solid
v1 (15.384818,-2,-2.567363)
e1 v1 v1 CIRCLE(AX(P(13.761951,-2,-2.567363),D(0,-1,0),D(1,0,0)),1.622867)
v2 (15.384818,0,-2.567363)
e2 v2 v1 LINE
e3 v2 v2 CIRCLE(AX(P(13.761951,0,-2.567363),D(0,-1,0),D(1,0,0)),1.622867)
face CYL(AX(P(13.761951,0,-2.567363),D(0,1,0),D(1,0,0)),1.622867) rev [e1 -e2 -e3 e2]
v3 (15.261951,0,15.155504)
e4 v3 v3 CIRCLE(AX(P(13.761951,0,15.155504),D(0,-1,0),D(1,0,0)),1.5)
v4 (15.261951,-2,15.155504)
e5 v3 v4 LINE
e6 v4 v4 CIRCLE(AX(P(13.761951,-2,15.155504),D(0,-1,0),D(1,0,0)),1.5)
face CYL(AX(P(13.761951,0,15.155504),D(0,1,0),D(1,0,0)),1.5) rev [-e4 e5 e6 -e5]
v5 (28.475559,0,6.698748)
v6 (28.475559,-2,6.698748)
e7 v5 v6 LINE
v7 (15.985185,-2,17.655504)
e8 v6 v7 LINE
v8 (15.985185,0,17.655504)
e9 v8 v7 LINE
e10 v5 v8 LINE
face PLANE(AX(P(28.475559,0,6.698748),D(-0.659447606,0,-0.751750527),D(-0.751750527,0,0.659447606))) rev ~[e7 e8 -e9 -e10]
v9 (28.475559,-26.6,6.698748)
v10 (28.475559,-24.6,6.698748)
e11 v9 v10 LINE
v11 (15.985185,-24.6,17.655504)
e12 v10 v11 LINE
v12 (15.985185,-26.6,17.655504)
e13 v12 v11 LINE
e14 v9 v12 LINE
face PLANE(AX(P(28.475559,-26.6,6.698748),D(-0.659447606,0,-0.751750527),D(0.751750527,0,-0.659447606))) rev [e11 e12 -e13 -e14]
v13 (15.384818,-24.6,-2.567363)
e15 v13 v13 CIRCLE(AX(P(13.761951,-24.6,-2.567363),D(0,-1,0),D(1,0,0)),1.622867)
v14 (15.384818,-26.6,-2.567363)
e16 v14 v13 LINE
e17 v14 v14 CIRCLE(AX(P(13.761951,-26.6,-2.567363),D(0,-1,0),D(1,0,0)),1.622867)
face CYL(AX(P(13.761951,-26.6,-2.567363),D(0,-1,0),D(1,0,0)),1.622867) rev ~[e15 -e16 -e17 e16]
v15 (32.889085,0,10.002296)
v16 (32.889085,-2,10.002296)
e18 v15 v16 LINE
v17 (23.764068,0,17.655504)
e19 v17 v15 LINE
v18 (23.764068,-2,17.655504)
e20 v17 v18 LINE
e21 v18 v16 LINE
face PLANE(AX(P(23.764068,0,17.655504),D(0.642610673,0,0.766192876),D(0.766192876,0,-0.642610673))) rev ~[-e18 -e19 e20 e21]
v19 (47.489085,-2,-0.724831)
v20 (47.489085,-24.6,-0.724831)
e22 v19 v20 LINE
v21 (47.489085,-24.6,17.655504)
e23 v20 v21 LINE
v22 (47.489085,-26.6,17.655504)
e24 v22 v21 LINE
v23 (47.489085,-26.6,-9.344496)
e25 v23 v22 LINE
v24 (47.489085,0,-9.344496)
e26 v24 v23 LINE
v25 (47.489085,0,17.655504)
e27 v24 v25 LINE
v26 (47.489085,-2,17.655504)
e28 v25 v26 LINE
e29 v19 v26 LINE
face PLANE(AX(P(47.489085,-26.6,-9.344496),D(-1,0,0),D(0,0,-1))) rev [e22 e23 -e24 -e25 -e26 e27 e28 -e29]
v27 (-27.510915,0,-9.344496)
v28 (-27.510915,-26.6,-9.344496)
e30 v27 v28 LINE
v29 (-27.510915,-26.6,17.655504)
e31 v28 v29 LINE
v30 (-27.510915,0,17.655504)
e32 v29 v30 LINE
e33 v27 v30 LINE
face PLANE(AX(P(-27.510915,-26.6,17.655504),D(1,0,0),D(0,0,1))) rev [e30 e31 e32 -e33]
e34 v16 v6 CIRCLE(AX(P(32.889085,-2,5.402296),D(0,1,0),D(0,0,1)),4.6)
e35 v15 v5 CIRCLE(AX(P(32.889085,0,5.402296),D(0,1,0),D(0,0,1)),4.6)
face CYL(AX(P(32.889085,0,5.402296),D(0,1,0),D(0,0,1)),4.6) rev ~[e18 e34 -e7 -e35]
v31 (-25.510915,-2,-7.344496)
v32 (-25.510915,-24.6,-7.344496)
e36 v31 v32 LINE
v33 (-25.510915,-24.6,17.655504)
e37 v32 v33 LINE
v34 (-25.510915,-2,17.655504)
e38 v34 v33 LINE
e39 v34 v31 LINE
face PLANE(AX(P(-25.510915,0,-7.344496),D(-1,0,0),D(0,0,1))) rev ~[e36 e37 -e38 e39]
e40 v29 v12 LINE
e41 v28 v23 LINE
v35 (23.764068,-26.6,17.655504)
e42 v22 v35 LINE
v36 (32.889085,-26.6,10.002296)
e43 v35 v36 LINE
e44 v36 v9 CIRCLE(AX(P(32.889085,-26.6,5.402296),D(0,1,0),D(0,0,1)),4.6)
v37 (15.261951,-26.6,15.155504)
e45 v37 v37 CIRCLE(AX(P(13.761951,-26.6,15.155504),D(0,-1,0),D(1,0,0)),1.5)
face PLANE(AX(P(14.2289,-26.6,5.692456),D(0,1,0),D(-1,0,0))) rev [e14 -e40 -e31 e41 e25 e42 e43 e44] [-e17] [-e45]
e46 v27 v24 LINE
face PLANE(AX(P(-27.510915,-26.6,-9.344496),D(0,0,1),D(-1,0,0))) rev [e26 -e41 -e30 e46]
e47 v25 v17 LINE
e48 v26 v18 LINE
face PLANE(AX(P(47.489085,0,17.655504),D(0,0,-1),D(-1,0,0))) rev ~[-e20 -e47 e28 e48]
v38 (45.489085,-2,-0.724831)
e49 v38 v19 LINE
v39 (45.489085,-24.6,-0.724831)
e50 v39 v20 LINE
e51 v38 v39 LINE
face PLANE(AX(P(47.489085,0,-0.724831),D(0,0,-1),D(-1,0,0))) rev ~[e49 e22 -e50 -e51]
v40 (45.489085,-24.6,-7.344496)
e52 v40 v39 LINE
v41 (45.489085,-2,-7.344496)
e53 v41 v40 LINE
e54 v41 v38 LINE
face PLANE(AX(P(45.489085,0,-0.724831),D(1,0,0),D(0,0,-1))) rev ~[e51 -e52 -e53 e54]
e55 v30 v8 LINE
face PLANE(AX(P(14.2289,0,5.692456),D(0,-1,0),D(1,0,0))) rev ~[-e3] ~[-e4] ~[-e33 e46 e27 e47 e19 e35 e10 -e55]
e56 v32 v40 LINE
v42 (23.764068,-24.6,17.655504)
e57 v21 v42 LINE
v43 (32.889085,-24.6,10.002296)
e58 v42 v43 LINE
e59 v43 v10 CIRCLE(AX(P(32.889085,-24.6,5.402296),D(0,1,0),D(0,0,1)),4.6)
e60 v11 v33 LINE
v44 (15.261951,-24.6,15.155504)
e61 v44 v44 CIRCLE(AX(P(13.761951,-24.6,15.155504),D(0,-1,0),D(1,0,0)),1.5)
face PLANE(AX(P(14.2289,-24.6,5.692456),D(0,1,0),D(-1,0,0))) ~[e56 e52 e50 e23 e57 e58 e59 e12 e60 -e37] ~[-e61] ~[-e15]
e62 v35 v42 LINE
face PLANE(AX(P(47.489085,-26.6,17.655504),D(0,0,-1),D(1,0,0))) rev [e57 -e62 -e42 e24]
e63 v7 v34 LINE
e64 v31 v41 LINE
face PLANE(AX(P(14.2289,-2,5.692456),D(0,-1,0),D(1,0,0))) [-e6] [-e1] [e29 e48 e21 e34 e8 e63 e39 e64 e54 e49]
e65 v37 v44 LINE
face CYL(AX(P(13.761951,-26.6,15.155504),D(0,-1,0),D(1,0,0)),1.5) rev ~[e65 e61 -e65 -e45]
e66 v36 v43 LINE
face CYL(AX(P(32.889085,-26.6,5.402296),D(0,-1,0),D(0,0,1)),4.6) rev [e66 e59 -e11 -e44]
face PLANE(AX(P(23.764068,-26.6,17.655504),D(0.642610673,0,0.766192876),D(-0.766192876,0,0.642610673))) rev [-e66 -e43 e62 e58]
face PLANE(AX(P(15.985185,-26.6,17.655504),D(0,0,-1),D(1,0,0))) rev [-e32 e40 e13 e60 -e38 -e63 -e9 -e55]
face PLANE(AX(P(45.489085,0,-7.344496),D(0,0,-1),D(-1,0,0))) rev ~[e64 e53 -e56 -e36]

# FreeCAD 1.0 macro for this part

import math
import FreeCAD as App
import Part
import Sketcher

doc = App.newDocument("Part")
body = doc.addObject("PartDesign::Body", "Body")

# Sketch on XZ plane
sketch1 = doc.addObject("Sketcher::SketchObject", "Sketch")
body.addObject(sketch1)
sketch1.AttachmentSupport = (doc.XZ_Plane, [""])
sketch1.MapMode = "FlatFace"
sketch1.addGeometry(Part.LineSegment(App.Vector(47.489085, 17.655504, 0), App.Vector(23.764068, 17.655504, 0)), False)
sketch1.addGeometry(Part.LineSegment(App.Vector(23.764068, 17.655504, 0), App.Vector(32.889085, 10.002296, 0)), False)
sketch1.addGeometry(Part.ArcOfCircle(Part.Circle(App.Vector(32.889085, 5.402296, 0), App.Vector(0, 0, 1), 4.6), math.radians(163.630106), math.radians(450)), False)
sketch1.addGeometry(Part.LineSegment(App.Vector(28.475559, 6.698748, 0), App.Vector(15.985185, 17.655504, 0)), False)
sketch1.addGeometry(Part.LineSegment(App.Vector(15.985185, 17.655504, 0), App.Vector(-27.510915, 17.655504, 0)), False)
sketch1.addGeometry(Part.LineSegment(App.Vector(-27.510915, 17.655504, 0), App.Vector(-27.510915, -9.344496, 0)), False)
sketch1.addGeometry(Part.LineSegment(App.Vector(-27.510915, -9.344496, 0), App.Vector(47.489085, -9.344496, 0)), False)
sketch1.addGeometry(Part.LineSegment(App.Vector(47.489085, -9.344496, 0), App.Vector(47.489085, 17.655504, 0)), False)
sketch1.addGeometry(Part.Circle(App.Vector(13.761951, -2.567363, 0), App.Vector(0, 0, 1), 1.622867), False)
sketch1.addGeometry(Part.Circle(App.Vector(13.761951, 15.155504, 0), App.Vector(0, 0, 1), 1.5), False)
sketch1.addConstraint(Sketcher.Constraint("Coincident", 0, 2, 1, 1))
sketch1.addConstraint(Sketcher.Constraint("Coincident", 1, 2, 2, 2))
sketch1.addConstraint(Sketcher.Constraint("Coincident", 2, 1, 3, 1))
sketch1.addConstraint(Sketcher.Constraint("Coincident", 3, 2, 4, 1))
sketch1.addConstraint(Sketcher.Constraint("Coincident", 4, 2, 5, 1))
sketch1.addConstraint(Sketcher.Constraint("Coincident", 5, 2, 6, 1))
sketch1.addConstraint(Sketcher.Constraint("Coincident", 6, 2, 7, 1))
sketch1.addConstraint(Sketcher.Constraint("Coincident", 7, 2, 0, 1))
sketch1.addConstraint(Sketcher.Constraint("Horizontal", 0))
sketch1.addConstraint(Sketcher.Constraint("Horizontal", 4))
sketch1.addConstraint(Sketcher.Constraint("Vertical", 5))
sketch1.addConstraint(Sketcher.Constraint("Horizontal", 6))
sketch1.addConstraint(Sketcher.Constraint("Vertical", 7))
sketch1.addConstraint(Sketcher.Constraint("Horizontal", 0, 2, 3, 2))
sketch1.addConstraint(Sketcher.Constraint("Vertical", 8, 3, 9, 3))
sketch1.addConstraint(Sketcher.Constraint("Vertical", 2, 3, 1, 2))
sketch1.addConstraint(Sketcher.Constraint("Diameter", 9, 3.0))
sketch1.addConstraint(Sketcher.Constraint("Radius", 2, 4.6))
sketch1.addConstraint(Sketcher.Constraint("DistanceX", 6, 1, 6, 2, 75.0))
sketch1.addConstraint(Sketcher.Constraint("DistanceY", 5, 2, 5, 1, 27.0))
sketch1.addConstraint(Sketcher.Constraint("DistanceY", 9, 3, 0, 2, 2.5))
sketch1.addConstraint(Sketcher.Constraint("DistanceX", 2, 3, 6, 2, 14.6))
sketch1.addConstraint(Sketcher.Constraint("Diameter", 8, 3.245733))
sketch1.addConstraint(Sketcher.Constraint("DistanceX", 4, 2, 4, 1, 43.496101))
sketch1.addConstraint(Sketcher.Constraint("Distance", 3, 16.615051))
sketch1.addConstraint(Sketcher.Constraint("DistanceX", 0, 2, 0, 1, 23.725016))
sketch1.addConstraint(Sketcher.Constraint("DistanceX", -1, 1, 8, 3, 13.761951))
sketch1.addConstraint(Sketcher.Constraint("DistanceX", -1, 1, 0, 2, 23.764068))
sketch1.addConstraint(Sketcher.Constraint("DistanceX", -1, 1, 2, 1, 28.475559))
sketch1.addConstraint(Sketcher.Constraint("DistanceY", -1, 1, 2, 1, 6.698748))
sketch1.addConstraint(Sketcher.Constraint("DistanceY", 8, 3, 2, 3, 7.969659))
pad1 = doc.addObject("PartDesign::Pad", "Pad")
body.addObject(pad1)
pad1.Profile = sketch1
pad1.Length = 2

# Sketch on XZ plane
sketch2 = doc.addObject("Sketcher::SketchObject", "Sketch001")
body.addObject(sketch2)
sketch2.AttachmentSupport = (doc.XZ_Plane, [""])
sketch2.MapMode = "FlatFace"
sketch2.addGeometry(Part.LineSegment(App.Vector(47.489085, -9.344496, 0), App.Vector(47.489085, -0.724831, 0)), False)
sketch2.addGeometry(Part.LineSegment(App.Vector(47.489085, -0.724831, 0), App.Vector(45.489085, -0.724831, 0)), False)
sketch2.addGeometry(Part.LineSegment(App.Vector(45.489085, -0.724831, 0), App.Vector(45.489085, -7.344496, 0)), False)
sketch2.addGeometry(Part.LineSegment(App.Vector(45.489085, -7.344496, 0), App.Vector(-27.510915, -7.344496, 0)), False)
sketch2.addGeometry(Part.LineSegment(App.Vector(-27.510915, -7.344496, 0), App.Vector(-27.510915, -9.344496, 0)), False)
sketch2.addGeometry(Part.LineSegment(App.Vector(-27.510915, -9.344496, 0), App.Vector(47.489085, -9.344496, 0)), False)
sketch2.addConstraint(Sketcher.Constraint("Coincident", 0, 2, 1, 1))
sketch2.addConstraint(Sketcher.Constraint("Coincident", 1, 2, 2, 1))
sketch2.addConstraint(Sketcher.Constraint("Coincident", 2, 2, 3, 1))
sketch2.addConstraint(Sketcher.Constraint("Coincident", 3, 2, 4, 1))
sketch2.addConstraint(Sketcher.Constraint("Coincident", 4, 2, 5, 1))
sketch2.addConstraint(Sketcher.Constraint("Coincident", 5, 2, 0, 1))
sketch2.addConstraint(Sketcher.Constraint("Vertical", 0))
sketch2.addConstraint(Sketcher.Constraint("Horizontal", 1))
sketch2.addConstraint(Sketcher.Constraint("Vertical", 2))
sketch2.addConstraint(Sketcher.Constraint("Horizontal", 3))
sketch2.addConstraint(Sketcher.Constraint("Vertical", 4))
sketch2.addConstraint(Sketcher.Constraint("Horizontal", 5))
sketch2.addConstraint(Sketcher.Constraint("Equal", 1, 4))
sketch2.addConstraint(Sketcher.Constraint("DistanceX", 1, 2, 1, 1, 2.0))
sketch2.addConstraint(Sketcher.Constraint("DistanceX", 3, 2, 3, 1, 73.0))
sketch2.addConstraint(Sketcher.Constraint("DistanceY", 0, 1, 0, 2, 8.619666))
sketch2.addConstraint(Sketcher.Constraint("DistanceY", 0, 2, -1, 1, 0.724831))
sketch2.addConstraint(Sketcher.Constraint("DistanceX", -1, 1, 0, 2, 47.489085))
pad2 = doc.addObject("PartDesign::Pad", "Pad001")
body.addObject(pad2)
pad2.Profile = sketch2
pad2.Length = 25.6

# Sketch on XZ plane
sketch3 = doc.addObject("Sketcher::SketchObject", "Sketch002")
body.addObject(sketch3)
sketch3.AttachmentSupport = (doc.XZ_Plane, [""])
sketch3.MapMode = "FlatFace"
sketch3.addGeometry(Part.LineSegment(App.Vector(-27.510915, 17.655504, 0), App.Vector(-27.510915, -7.344496, 0)), False)
sketch3.addGeometry(Part.LineSegment(App.Vector(-27.510915, -7.344496, 0), App.Vector(-25.510915, -7.344496, 0)), False)
sketch3.addGeometry(Part.LineSegment(App.Vector(-25.510915, -7.344496, 0), App.Vector(-25.510915, 17.655504, 0)), False)
sketch3.addGeometry(Part.LineSegment(App.Vector(-25.510915, 17.655504, 0), App.Vector(-27.510915, 17.655504, 0)), False)
sketch3.addConstraint(Sketcher.Constraint("Coincident", 0, 2, 1, 1))
sketch3.addConstraint(Sketcher.Constraint("Coincident", 1, 2, 2, 1))
sketch3.addConstraint(Sketcher.Constraint("Coincident", 2, 2, 3, 1))
sketch3.addConstraint(Sketcher.Constraint("Coincident", 3, 2, 0, 1))
sketch3.addConstraint(Sketcher.Constraint("Vertical", 0))
sketch3.addConstraint(Sketcher.Constraint("Horizontal", 1))
sketch3.addConstraint(Sketcher.Constraint("Vertical", 2))
sketch3.addConstraint(Sketcher.Constraint("Horizontal", 3))
sketch3.addConstraint(Sketcher.Constraint("DistanceX", 1, 1, 1, 2, 2.0))
sketch3.addConstraint(Sketcher.Constraint("DistanceY", 0, 2, 0, 1, 25.0))
sketch3.addConstraint(Sketcher.Constraint("DistanceX", 0, 2, -1, 1, 27.510915))
sketch3.addConstraint(Sketcher.Constraint("DistanceY", 0, 2, -1, 1, 7.344496))
pad3 = doc.addObject("PartDesign::Pad", "Pad002")
body.addObject(pad3)
pad3.Profile = sketch3
pad3.Length = 24.6
body2 = doc.addObject("PartDesign::Body", "Body001")
doc.recompute()

body2.BaseFeature = body
doc.recompute()

mirroring = doc.addObject("Part::Mirroring", "Mirroring")
mirroring.Source = body
mirroring.Base = App.Vector(0, -13.3, 0)
mirroring.Normal = App.Vector(0, -1, 0)
body3 = doc.addObject("PartDesign::Body", "Body002")
body3.BaseFeature = mirroring
boolean = doc.addObject("PartDesign::Boolean", "Boolean")
body2.addObject(boolean)
boolean.Type = "Fuse"
boolean.addObjects([body3])
doc.recompute()
mirroring.Visibility = False

doc.recompute()
